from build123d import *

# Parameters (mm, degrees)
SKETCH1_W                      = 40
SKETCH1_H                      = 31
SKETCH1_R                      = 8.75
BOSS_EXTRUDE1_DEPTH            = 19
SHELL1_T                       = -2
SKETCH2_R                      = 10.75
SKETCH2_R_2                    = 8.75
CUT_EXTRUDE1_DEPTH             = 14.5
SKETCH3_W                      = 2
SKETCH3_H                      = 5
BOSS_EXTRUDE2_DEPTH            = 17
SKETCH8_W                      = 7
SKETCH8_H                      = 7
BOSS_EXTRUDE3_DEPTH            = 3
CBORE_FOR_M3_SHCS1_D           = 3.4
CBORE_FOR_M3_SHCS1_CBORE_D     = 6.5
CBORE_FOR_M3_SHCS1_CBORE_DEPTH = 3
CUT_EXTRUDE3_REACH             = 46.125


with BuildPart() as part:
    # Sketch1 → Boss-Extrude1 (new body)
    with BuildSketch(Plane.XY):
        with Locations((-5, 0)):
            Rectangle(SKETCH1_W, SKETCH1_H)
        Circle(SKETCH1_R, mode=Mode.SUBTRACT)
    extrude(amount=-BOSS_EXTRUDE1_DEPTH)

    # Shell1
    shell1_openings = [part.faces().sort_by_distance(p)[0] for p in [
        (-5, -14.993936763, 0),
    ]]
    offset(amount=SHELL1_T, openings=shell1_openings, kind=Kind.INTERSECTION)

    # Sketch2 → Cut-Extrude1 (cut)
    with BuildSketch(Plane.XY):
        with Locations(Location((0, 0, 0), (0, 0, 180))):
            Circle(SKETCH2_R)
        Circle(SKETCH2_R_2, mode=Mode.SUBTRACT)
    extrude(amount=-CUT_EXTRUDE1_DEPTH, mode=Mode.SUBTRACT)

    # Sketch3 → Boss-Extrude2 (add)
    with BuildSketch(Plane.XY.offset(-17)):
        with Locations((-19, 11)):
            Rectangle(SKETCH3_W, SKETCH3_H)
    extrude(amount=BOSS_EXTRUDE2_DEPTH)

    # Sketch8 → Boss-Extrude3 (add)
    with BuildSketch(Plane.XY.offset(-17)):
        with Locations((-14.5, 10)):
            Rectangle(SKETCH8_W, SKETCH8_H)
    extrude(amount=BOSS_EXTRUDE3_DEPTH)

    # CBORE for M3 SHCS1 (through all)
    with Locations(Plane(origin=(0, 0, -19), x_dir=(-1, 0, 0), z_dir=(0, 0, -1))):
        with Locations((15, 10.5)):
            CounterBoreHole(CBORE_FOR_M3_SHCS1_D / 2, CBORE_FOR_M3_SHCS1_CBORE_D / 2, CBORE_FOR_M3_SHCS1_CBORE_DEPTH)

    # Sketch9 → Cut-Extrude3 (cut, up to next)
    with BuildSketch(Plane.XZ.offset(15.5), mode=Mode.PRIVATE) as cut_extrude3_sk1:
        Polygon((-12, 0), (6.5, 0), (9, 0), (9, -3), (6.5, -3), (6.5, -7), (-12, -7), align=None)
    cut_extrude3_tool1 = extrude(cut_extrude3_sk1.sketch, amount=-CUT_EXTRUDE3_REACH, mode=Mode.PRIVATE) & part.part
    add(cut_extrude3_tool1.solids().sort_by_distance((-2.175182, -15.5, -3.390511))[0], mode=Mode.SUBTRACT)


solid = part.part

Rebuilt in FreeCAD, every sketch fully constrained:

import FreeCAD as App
import Part
import Sketcher

V = App.Vector


def faces_at(feature, points):
    """Names of the faces that lie closest to the given points."""
    faces = feature.Shape.Faces
    near = lambda p: min(range(len(faces)), key=lambda i: faces[i].distToShape(Part.Vertex(*p))[0])
    return sorted({f"Face{near(p) + 1}" for p in points})


def add_polygon(sketch, points):
    """Adds a closed chain of lines whose ends are joined by coincident constraints."""
    first, n = sketch.GeometryCount, len(points)
    for a, b in zip(points, points[1:] + points[:1]):
        sketch.addGeometry(Part.LineSegment(App.Vector(*a, 0), App.Vector(*b, 0)), False)
    for i in range(n):
        sketch.addConstraint(Sketcher.Constraint("Coincident", first + i, 2, first + (i + 1) % n, 1))

doc = App.newDocument("Part")
body = doc.addObject("PartDesign::Body", "Body")

sketch1 = body.newObject("Sketcher::SketchObject", "Sketch")
sketch1.AttachmentSupport = (doc.getObject("XY_Plane"), [""])
sketch1.MapMode = "FlatFace"
add_polygon(sketch1, [(-25, 15.5), (-25, -15.5), (15, -15.5), (15, 15.5)])
sketch1.addGeometry(Part.Circle(V(0, 0, 0), V(0, 0, 1), 8.75), False)
sketch1.addConstraint(Sketcher.Constraint("Vertical", 0))
sketch1.addConstraint(Sketcher.Constraint("Horizontal", 1))
sketch1.addConstraint(Sketcher.Constraint("Vertical", 2))
sketch1.addConstraint(Sketcher.Constraint("Horizontal", 3))
sketch1.addConstraint(Sketcher.Constraint("Coincident", 4, 3, -1, 1))
sketch1.addConstraint(Sketcher.Constraint("Diameter", 4, 17.5))
sketch1.addConstraint(Sketcher.Constraint("DistanceX", 1, 1, 1, 2, 40.0))
sketch1.addConstraint(Sketcher.Constraint("DistanceY", 0, 2, 0, 1, 31.0))
sketch1.addConstraint(Sketcher.Constraint("DistanceX", 0, 2, -1, 1, 25.0))
sketch1.addConstraint(Sketcher.Constraint("DistanceY", 0, 2, -1, 1, 15.5))
pad1 = body.newObject("PartDesign::Pad", "Pad")
pad1.Profile = sketch1
pad1.Length = 19
pad1.Reversed = True
doc.recompute()

thickness = body.newObject("PartDesign::Thickness", "Thickness")
thickness.Base = (pad1, faces_at(pad1, [(-13, -6.2, 0)]))
thickness.Value = 2
thickness.Reversed = True
thickness.Join = "Intersection"

sketch2 = body.newObject("Sketcher::SketchObject", "Sketch001")
sketch2.AttachmentSupport = (doc.getObject("XY_Plane"), [""])
sketch2.MapMode = "FlatFace"
sketch2.addGeometry(Part.Circle(V(0, 0, 0), V(0, 0, 1), 10.75), False)
sketch2.addGeometry(Part.Circle(V(0, 0, 0), V(0, 0, 1), 8.75), False)
sketch2.addConstraint(Sketcher.Constraint("Coincident", 0, 3, -1, 1))
sketch2.addConstraint(Sketcher.Constraint("Coincident", 1, 3, -1, 1))
sketch2.addConstraint(Sketcher.Constraint("Diameter", 0, 21.5))
sketch2.addConstraint(Sketcher.Constraint("Diameter", 1, 17.5))
pocket1 = body.newObject("PartDesign::Pocket", "Pocket")
pocket1.Profile = sketch2
pocket1.Length = 14.5

sketch3 = body.newObject("Sketcher::SketchObject", "Sketch002")
sketch3.AttachmentSupport = (doc.getObject("XY_Plane"), [""])
sketch3.MapMode = "FlatFace"
sketch3.AttachmentOffset = App.Placement(V(0, 0, -17), App.Rotation())
add_polygon(sketch3, [(-20, 13.5), (-20, 8.5), (-18, 8.5), (-18, 13.5)])
sketch3.addConstraint(Sketcher.Constraint("Vertical", 0))
sketch3.addConstraint(Sketcher.Constraint("Horizontal", 1))
sketch3.addConstraint(Sketcher.Constraint("Vertical", 2))
sketch3.addConstraint(Sketcher.Constraint("Horizontal", 3))
sketch3.addConstraint(Sketcher.Constraint("DistanceX", 1, 1, 1, 2, 2.0))
sketch3.addConstraint(Sketcher.Constraint("DistanceY", 0, 2, 0, 1, 5.0))
sketch3.addConstraint(Sketcher.Constraint("DistanceX", 0, 2, -1, 1, 20.0))
sketch3.addConstraint(Sketcher.Constraint("DistanceY", -1, 1, 0, 2, 8.5))
pad2 = body.newObject("PartDesign::Pad", "Pad001")
pad2.Profile = sketch3
pad2.Length = 17

sketch4 = body.newObject("Sketcher::SketchObject", "Sketch003")
sketch4.AttachmentSupport = (doc.getObject("XY_Plane"), [""])
sketch4.MapMode = "FlatFace"
sketch4.AttachmentOffset = App.Placement(V(0, 0, -17), App.Rotation())
add_polygon(sketch4, [(-18, 13.5), (-18, 6.5), (-11, 6.5), (-11, 13.5)])
sketch4.addConstraint(Sketcher.Constraint("Vertical", 0))
sketch4.addConstraint(Sketcher.Constraint("Horizontal", 1))
sketch4.addConstraint(Sketcher.Constraint("Vertical", 2))
sketch4.addConstraint(Sketcher.Constraint("Horizontal", 3))
sketch4.addConstraint(Sketcher.Constraint("Equal", 3, 0))
sketch4.addConstraint(Sketcher.Constraint("DistanceX", 1, 1, 1, 2, 7.0))
sketch4.addConstraint(Sketcher.Constraint("DistanceX", 0, 2, -1, 1, 18.0))
sketch4.addConstraint(Sketcher.Constraint("DistanceY", -1, 1, 0, 2, 6.5))
pad3 = body.newObject("PartDesign::Pad", "Pad002")
pad3.Profile = sketch4
pad3.Length = 3

sketch5 = body.newObject("Sketcher::SketchObject", "Sketch004")
sketch5.AttachmentSupport = (doc.getObject("XY_Plane"), [""])
sketch5.MapMode = "FlatFace"
sketch5.AttachmentOffset = App.Placement(V(0, 0, -19), App.Rotation())
sketch5.addGeometry(Part.Circle(V(-15, 10.5, 0), V(0, 0, 1), 1.7), False)
sketch5.addConstraint(Sketcher.Constraint("Diameter", 0, 3.4))
sketch5.addConstraint(Sketcher.Constraint("DistanceX", 0, 3, -1, 1, 15.0))
sketch5.addConstraint(Sketcher.Constraint("DistanceY", -1, 1, 0, 3, 10.5))
doc.recompute()
hole = body.newObject("PartDesign::Hole", "Hole")
hole.Profile = sketch5
hole.ThreadType = "None"
hole.Diameter = 3.4
hole.DepthType = "ThroughAll"
hole.HoleCutType = "Counterbore"
hole.HoleCutDiameter = 6.5
hole.HoleCutDepth = 3
hole.Reversed = True

sketch6 = body.newObject("Sketcher::SketchObject", "Sketch005")
sketch6.AttachmentSupport = (doc.getObject("XZ_Plane"), [""])
sketch6.MapMode = "FlatFace"
sketch6.AttachmentOffset = App.Placement(V(0, 0, 15.5), App.Rotation())
add_polygon(sketch6, [(9, 0), (-12, 0), (-12, -7), (6.5, -7), (6.5, -3), (9, -3)])
sketch6.addConstraint(Sketcher.Constraint("Horizontal", 0))
sketch6.addConstraint(Sketcher.Constraint("Vertical", 1))
sketch6.addConstraint(Sketcher.Constraint("Horizontal", 2))
sketch6.addConstraint(Sketcher.Constraint("Vertical", 3))
sketch6.addConstraint(Sketcher.Constraint("Horizontal", 4))
sketch6.addConstraint(Sketcher.Constraint("Vertical", 5))
sketch6.addConstraint(Sketcher.Constraint("PointOnObject", 0, 2, -1))
sketch6.addConstraint(Sketcher.Constraint("DistanceX", 0, 2, 0, 1, 21.0))
sketch6.addConstraint(Sketcher.Constraint("DistanceY", 1, 2, 1, 1, 7.0))
sketch6.addConstraint(Sketcher.Constraint("DistanceY", 3, 1, 3, 2, 4.0))
sketch6.addConstraint(Sketcher.Constraint("DistanceX", 2, 1, 2, 2, 18.5))
sketch6.addConstraint(Sketcher.Constraint("DistanceX", 0, 2, -1, 1, 12.0))
pocket2 = body.newObject("PartDesign::Pocket", "Pocket001")
pocket2.Profile = sketch6
pocket2.Type = "UpToFirst"

doc.recompute()
